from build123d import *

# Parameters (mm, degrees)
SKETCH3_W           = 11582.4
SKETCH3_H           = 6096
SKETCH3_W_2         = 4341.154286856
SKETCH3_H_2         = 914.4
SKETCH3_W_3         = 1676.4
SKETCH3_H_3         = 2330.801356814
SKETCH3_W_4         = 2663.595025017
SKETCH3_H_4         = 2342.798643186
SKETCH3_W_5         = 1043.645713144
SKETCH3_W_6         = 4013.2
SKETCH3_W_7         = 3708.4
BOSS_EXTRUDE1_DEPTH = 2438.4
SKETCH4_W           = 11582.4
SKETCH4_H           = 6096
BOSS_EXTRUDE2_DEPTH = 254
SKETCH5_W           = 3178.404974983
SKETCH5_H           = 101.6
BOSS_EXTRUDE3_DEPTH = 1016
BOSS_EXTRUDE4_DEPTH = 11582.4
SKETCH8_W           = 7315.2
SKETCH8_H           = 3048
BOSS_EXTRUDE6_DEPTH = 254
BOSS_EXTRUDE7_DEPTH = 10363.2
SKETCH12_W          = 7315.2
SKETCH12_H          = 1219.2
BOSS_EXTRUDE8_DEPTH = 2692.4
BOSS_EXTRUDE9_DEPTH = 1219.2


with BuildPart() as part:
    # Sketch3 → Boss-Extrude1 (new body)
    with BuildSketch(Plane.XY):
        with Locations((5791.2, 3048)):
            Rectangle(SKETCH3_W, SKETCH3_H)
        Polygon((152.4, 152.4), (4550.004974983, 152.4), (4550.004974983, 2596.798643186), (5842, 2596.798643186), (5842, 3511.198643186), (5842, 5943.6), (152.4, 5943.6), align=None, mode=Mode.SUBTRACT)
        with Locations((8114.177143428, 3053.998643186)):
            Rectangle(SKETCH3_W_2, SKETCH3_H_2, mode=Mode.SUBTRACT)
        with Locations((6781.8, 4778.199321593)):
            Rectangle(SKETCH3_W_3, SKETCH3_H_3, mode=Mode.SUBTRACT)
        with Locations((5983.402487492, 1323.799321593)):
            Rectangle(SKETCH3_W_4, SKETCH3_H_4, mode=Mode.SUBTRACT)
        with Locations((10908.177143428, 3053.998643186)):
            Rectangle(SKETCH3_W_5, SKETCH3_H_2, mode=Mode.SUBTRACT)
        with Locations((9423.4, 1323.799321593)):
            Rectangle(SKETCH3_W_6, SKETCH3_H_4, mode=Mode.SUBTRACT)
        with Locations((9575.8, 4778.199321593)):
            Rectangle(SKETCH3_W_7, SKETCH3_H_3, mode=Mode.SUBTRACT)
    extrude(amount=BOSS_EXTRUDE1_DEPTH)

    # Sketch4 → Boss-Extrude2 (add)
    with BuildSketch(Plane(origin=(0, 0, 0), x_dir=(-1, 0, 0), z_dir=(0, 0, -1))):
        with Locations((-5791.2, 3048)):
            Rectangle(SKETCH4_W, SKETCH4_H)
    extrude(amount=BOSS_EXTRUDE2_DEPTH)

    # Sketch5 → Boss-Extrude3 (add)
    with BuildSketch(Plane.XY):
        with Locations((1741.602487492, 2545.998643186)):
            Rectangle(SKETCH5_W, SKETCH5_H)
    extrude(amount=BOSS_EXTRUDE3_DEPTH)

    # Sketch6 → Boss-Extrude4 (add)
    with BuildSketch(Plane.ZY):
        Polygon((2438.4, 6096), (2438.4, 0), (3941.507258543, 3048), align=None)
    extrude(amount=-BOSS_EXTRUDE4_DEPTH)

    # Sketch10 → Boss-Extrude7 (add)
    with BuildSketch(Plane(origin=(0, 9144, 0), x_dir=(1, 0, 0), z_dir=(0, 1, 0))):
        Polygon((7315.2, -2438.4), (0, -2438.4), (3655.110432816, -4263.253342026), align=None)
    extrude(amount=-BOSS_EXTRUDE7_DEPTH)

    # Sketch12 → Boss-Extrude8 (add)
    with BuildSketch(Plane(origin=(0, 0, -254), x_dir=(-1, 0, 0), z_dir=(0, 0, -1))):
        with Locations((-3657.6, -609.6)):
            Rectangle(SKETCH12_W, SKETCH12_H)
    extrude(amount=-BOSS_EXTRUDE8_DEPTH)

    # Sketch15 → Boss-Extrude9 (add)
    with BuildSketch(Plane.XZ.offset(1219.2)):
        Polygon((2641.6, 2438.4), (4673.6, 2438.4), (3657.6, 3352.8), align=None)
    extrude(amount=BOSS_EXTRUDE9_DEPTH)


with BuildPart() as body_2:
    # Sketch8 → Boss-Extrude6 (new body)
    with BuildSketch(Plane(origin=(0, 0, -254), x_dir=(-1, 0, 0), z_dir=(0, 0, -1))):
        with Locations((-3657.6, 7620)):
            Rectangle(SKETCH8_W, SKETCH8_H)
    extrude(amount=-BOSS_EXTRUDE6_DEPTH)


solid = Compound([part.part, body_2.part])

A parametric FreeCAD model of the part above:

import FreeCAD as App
import Part
import Sketcher
Q = App.Units.Quantity


def add_polygon(sketch, points):
    """Adds a closed chain of lines whose ends are joined by coincident constraints."""
    first, n = sketch.GeometryCount, len(points)
    for a, b in zip(points, points[1:] + points[:1]):
        sketch.addGeometry(Part.LineSegment(App.Vector(*a, 0), App.Vector(*b, 0)), False)
    for i in range(n):
        sketch.addConstraint(Sketcher.Constraint("Coincident", first + i, 2, first + (i + 1) % n, 1))

doc = App.newDocument("Part")
body = doc.addObject("PartDesign::Body", "Body")

sketch1 = body.newObject("Sketcher::SketchObject", "Sketch")
sketch1.AttachmentSupport = (doc.getObject("XY_Plane"), [""])
sketch1.MapMode = "FlatFace"
add_polygon(sketch1, [(0, 6096), (0, 0), (11582, 0), (11582, 6096)])
add_polygon(sketch1, [(7315, 152), (4652, 152), (4652, 2495), (7315, 2495)])
add_polygon(sketch1, [(11430, 152), (7417, 152), (7417, 2495), (11430, 2495)])
add_polygon(sketch1, [(4550, 152), (152, 152), (152, 5944), (5842, 5944), (5842, 2597), (4550, 2597)])
add_polygon(sketch1, [(10285, 2597), (5944, 2597), (5944, 3511), (10285, 3511)])
add_polygon(sketch1, [(11430, 2597), (10386, 2597), (10386, 3511), (11430, 3511)])
add_polygon(sketch1, [(7620, 3613), (5944, 3613), (5944, 5944), (7620, 5944)])
add_polygon(sketch1, [(11430, 3613), (7722, 3613), (7722, 5944), (11430, 5944)])
sketch1.addConstraint(Sketcher.Constraint("Vertical", 0))
sketch1.addConstraint(Sketcher.Constraint("Horizontal", 1))
sketch1.addConstraint(Sketcher.Constraint("Vertical", 2))
sketch1.addConstraint(Sketcher.Constraint("Horizontal", 3))
sketch1.addConstraint(Sketcher.Constraint("Horizontal", 4))
sketch1.addConstraint(Sketcher.Constraint("Vertical", 5))
sketch1.addConstraint(Sketcher.Constraint("Horizontal", 6))
sketch1.addConstraint(Sketcher.Constraint("Vertical", 7))
sketch1.addConstraint(Sketcher.Constraint("Horizontal", 8))
sketch1.addConstraint(Sketcher.Constraint("Vertical", 9))
sketch1.addConstraint(Sketcher.Constraint("Horizontal", 10))
sketch1.addConstraint(Sketcher.Constraint("Vertical", 11))
sketch1.addConstraint(Sketcher.Constraint("Horizontal", 12))
sketch1.addConstraint(Sketcher.Constraint("Vertical", 13))
sketch1.addConstraint(Sketcher.Constraint("Horizontal", 14))
sketch1.addConstraint(Sketcher.Constraint("Vertical", 15))
sketch1.addConstraint(Sketcher.Constraint("Horizontal", 16))
sketch1.addConstraint(Sketcher.Constraint("Vertical", 17))
sketch1.addConstraint(Sketcher.Constraint("Horizontal", 18))
sketch1.addConstraint(Sketcher.Constraint("Vertical", 19))
sketch1.addConstraint(Sketcher.Constraint("Horizontal", 20))
sketch1.addConstraint(Sketcher.Constraint("Vertical", 21))
sketch1.addConstraint(Sketcher.Constraint("Horizontal", 22))
sketch1.addConstraint(Sketcher.Constraint("Vertical", 23))
sketch1.addConstraint(Sketcher.Constraint("Horizontal", 24))
sketch1.addConstraint(Sketcher.Constraint("Vertical", 25))
sketch1.addConstraint(Sketcher.Constraint("Horizontal", 26))
sketch1.addConstraint(Sketcher.Constraint("Vertical", 27))
sketch1.addConstraint(Sketcher.Constraint("Horizontal", 28))
sketch1.addConstraint(Sketcher.Constraint("Vertical", 29))
sketch1.addConstraint(Sketcher.Constraint("Horizontal", 30))
sketch1.addConstraint(Sketcher.Constraint("Vertical", 31))
sketch1.addConstraint(Sketcher.Constraint("Horizontal", 32))
sketch1.addConstraint(Sketcher.Constraint("Vertical", 33))
sketch1.addConstraint(Sketcher.Constraint("Coincident", 0, 2, -1, 1))
sketch1.addConstraint(Sketcher.Constraint("Horizontal", 7, 2, 8, 2))
sketch1.addConstraint(Sketcher.Constraint("Horizontal", 6, 2, 9, 2))
sketch1.addConstraint(Sketcher.Constraint("Horizontal", 11, 2, 12, 2))
sketch1.addConstraint(Sketcher.Constraint("Horizontal", 16, 2, 18, 2))
sketch1.addConstraint(Sketcher.Constraint("Horizontal", 21, 2, 22, 2))
sketch1.addConstraint(Sketcher.Constraint("Horizontal", 20, 2, 23, 2))
sketch1.addConstraint(Sketcher.Constraint("Horizontal", 14, 2, 27, 2))
sketch1.addConstraint(Sketcher.Constraint("Horizontal", 29, 2, 30, 2))
sketch1.addConstraint(Sketcher.Constraint("Horizontal", 28, 2, 31, 2))
sketch1.addConstraint(Sketcher.Constraint("Vertical", 11, 2, 24, 2))
sketch1.addConstraint(Sketcher.Constraint("Vertical", 19, 2, 26, 2))
sketch1.addConstraint(Sketcher.Constraint("Vertical", 25, 2, 32, 2))
sketch1.addConstraint(Sketcher.Constraint("DistanceX", 1, 1, 1, 2, Q("456 in")))
sketch1.addConstraint(Sketcher.Constraint("DistanceX", 8, 2, 8, 1, Q("158 in")))
sketch1.addConstraint(Sketcher.Constraint("DistanceX", 14, 1, 14, 2, Q("224 in")))
sketch1.addConstraint(Sketcher.Constraint("DistanceX", 26, 2, 26, 1, Q("66 in")))
sketch1.addConstraint(Sketcher.Constraint("DistanceX", 30, 2, 30, 1, Q("146 in")))
sketch1.addConstraint(Sketcher.Constraint("DistanceY", 0, 2, 0, 1, Q("240 in")))
sketch1.addConstraint(Sketcher.Constraint("DistanceY", 13, 1, 13, 2, Q("228 in")))
sketch1.addConstraint(Sketcher.Constraint("DistanceY", 19, 1, 19, 2, Q("36 in")))
sketch1.addConstraint(Sketcher.Constraint("DistanceY", -1, 1, 4, 2, Q("6 in")))
sketch1.addConstraint(Sketcher.Constraint("DistanceX", -1, 1, 6, 2, Q("288 in")))
sketch1.addConstraint(Sketcher.Constraint("DistanceX", -1, 1, 8, 2, Q("292 in")))
sketch1.addConstraint(Sketcher.Constraint("DistanceX", -1, 1, 12, 2, Q("6 in")))
sketch1.addConstraint(Sketcher.Constraint("DistanceX", -1, 1, 18, 2, Q("234 in")))
sketch1.addConstraint(Sketcher.Constraint("DistanceY", 5, 2, 15, 2, Q("4 in")))
sketch1.addConstraint(Sketcher.Constraint("DistanceX", 16, 2, 5, 2, Q("4 in")))
sketch1.addConstraint(Sketcher.Constraint("DistanceX", 21, 2, 22, 2, Q("4 in")))
sketch1.addConstraint(Sketcher.Constraint("DistanceY", 19, 2, 26, 2, Q("4 in")))
sketch1.addConstraint(Sketcher.Constraint("DistanceX", 4, 2, 4, 1, 2663.595025))
sketch1.addConstraint(Sketcher.Constraint("DistanceX", 18, 2, 18, 1, 4341.154287))
sketch1.addConstraint(Sketcher.Constraint("DistanceY", 5, 1, 5, 2, 2342.798643))
pad1 = body.newObject("PartDesign::Pad", "Pad")
pad1.Profile = sketch1
pad1.Length = Q("96 in")

sketch2 = body.newObject("Sketcher::SketchObject", "Sketch001")
sketch2.AttachmentSupport = (doc.getObject("XY_Plane"), [""])
sketch2.MapMode = "FlatFace"
add_polygon(sketch2, [(11582, 6096), (11582, 0), (0, 0), (0, 6096)])
sketch2.addConstraint(Sketcher.Constraint("Vertical", 0))
sketch2.addConstraint(Sketcher.Constraint("Horizontal", 1))
sketch2.addConstraint(Sketcher.Constraint("Vertical", 2))
sketch2.addConstraint(Sketcher.Constraint("Horizontal", 3))
sketch2.addConstraint(Sketcher.Constraint("Coincident", 1, 2, -1, 1))
sketch2.addConstraint(Sketcher.Constraint("DistanceX", 1, 2, 1, 1, Q("456 in")))
sketch2.addConstraint(Sketcher.Constraint("DistanceY", 0, 2, 0, 1, Q("240 in")))
pad2 = body.newObject("PartDesign::Pad", "Pad001")
pad2.Profile = sketch2
pad2.Length = Q("10 in")
pad2.Reversed = True

sketch3 = body.newObject("Sketcher::SketchObject", "Sketch002")
sketch3.AttachmentSupport = (doc.getObject("XY_Plane"), [""])
sketch3.MapMode = "FlatFace"
add_polygon(sketch3, [(152, 2597), (152, 2495), (3331, 2495), (3331, 2597)])
sketch3.addConstraint(Sketcher.Constraint("Vertical", 0))
sketch3.addConstraint(Sketcher.Constraint("Horizontal", 1))
sketch3.addConstraint(Sketcher.Constraint("Vertical", 2))
sketch3.addConstraint(Sketcher.Constraint("Horizontal", 3))
sketch3.addConstraint(Sketcher.Constraint("DistanceY", 0, 2, 0, 1, Q("4 in")))
sketch3.addConstraint(Sketcher.Constraint("DistanceX", -1, 1, 0, 2, Q("6 in")))
sketch3.addConstraint(Sketcher.Constraint("DistanceX", 1, 1, 1, 2, 3178.404975))
sketch3.addConstraint(Sketcher.Constraint("DistanceY", -1, 1, 0, 2, 2495.198643))
pad3 = body.newObject("PartDesign::Pad", "Pad002")
pad3.Profile = sketch3
pad3.Length = Q("40 in")

sketch4 = body.newObject("Sketcher::SketchObject", "Sketch003")
sketch4.AttachmentSupport = (doc.getObject("YZ_Plane"), [""])
sketch4.MapMode = "FlatFace"
add_polygon(sketch4, [(6096, 2438), (0, 2438), (3048, 3942)])
sketch4.addConstraint(Sketcher.Constraint("Horizontal", 0))
sketch4.addConstraint(Sketcher.Constraint("PointOnObject", 0, 2, -2))
sketch4.addConstraint(Sketcher.Constraint("Equal", 1, 2))
sketch4.addConstraint(Sketcher.Constraint("DistanceX", 0, 2, 0, 1, Q("240 in")))
sketch4.addConstraint(Sketcher.Constraint("DistanceY", -1, 1, 0, 2, Q("96 in")))
sketch4.addConstraint(Sketcher.Constraint("Angle", 1, Q("26.25 deg")))
pad4 = body.newObject("PartDesign::Pad", "Pad003")
pad4.Profile = sketch4
pad4.Length = Q("456 in")

sketch5 = body.newObject("Sketcher::SketchObject", "Sketch004")
sketch5.AttachmentSupport = (doc.getObject("XZ_Plane"), [""])
sketch5.MapMode = "FlatFace"
sketch5.AttachmentOffset = App.Placement(App.Vector(0, 0, -360 * 25.4), App.Rotation())
add_polygon(sketch5, [(7315, 2438), (0, 2438), (3655, 4263)])
sketch5.addConstraint(Sketcher.Constraint("Horizontal", 0))
sketch5.addConstraint(Sketcher.Constraint("PointOnObject", 0, 2, -2))
sketch5.addConstraint(Sketcher.Constraint("DistanceX", 0, 2, 0, 1, Q("288 in")))
sketch5.addConstraint(Sketcher.Constraint("DistanceY", -1, 1, 0, 2, Q("96 in")))
sketch5.addConstraint(Sketcher.Constraint("Angle", 2, Q("-26.5 deg")))
sketch5.addConstraint(Sketcher.Constraint("Distance", 2, 4089.785491))
pad5 = body.newObject("PartDesign::Pad", "Pad004")
pad5.Profile = sketch5
pad5.Length = Q("408 in")

sketch6 = body.newObject("Sketcher::SketchObject", "Sketch005")
sketch6.AttachmentSupport = (doc.getObject("XY_Plane"), [""])
sketch6.MapMode = "FlatFace"
sketch6.AttachmentOffset = App.Placement(App.Vector(0, 0, -10 * 25.4), App.Rotation())
add_polygon(sketch6, [(7315, 0), (7315, -1219), (0, -1219), (0, 0)])
sketch6.addConstraint(Sketcher.Constraint("Vertical", 0))
sketch6.addConstraint(Sketcher.Constraint("Horizontal", 1))
sketch6.addConstraint(Sketcher.Constraint("Vertical", 2))
sketch6.addConstraint(Sketcher.Constraint("Horizontal", 3))
sketch6.addConstraint(Sketcher.Constraint("Coincident", 2, 2, -1, 1))
sketch6.addConstraint(Sketcher.Constraint("DistanceX", 1, 2, 1, 1, Q("288 in")))
sketch6.addConstraint(Sketcher.Constraint("DistanceY", 0, 2, 0, 1, Q("48 in")))
pad6 = body.newObject("PartDesign::Pad", "Pad005")
pad6.Profile = sketch6
pad6.Length = Q("106 in")

sketch7 = body.newObject("Sketcher::SketchObject", "Sketch006")
sketch7.AttachmentSupport = (doc.getObject("XZ_Plane"), [""])
sketch7.MapMode = "FlatFace"
sketch7.AttachmentOffset = App.Placement(App.Vector(0, 0, 48 * 25.4), App.Rotation())
add_polygon(sketch7, [(2642, 2438), (4674, 2438), (3658, 3353)])
sketch7.addConstraint(Sketcher.Constraint("Horizontal", 0))
sketch7.addConstraint(Sketcher.Constraint("Equal", 1, 2))
sketch7.addConstraint(Sketcher.Constraint("DistanceX", 0, 1, 0, 2, Q("80 in")))
sketch7.addConstraint(Sketcher.Constraint("DistanceX", -1, 1, 0, 2, Q("184 in")))
sketch7.addConstraint(Sketcher.Constraint("DistanceY", -1, 1, 0, 2, Q("96 in")))
sketch7.addConstraint(Sketcher.Constraint("DistanceY", -1, 1, 1, 2, Q("132 in")))
pad7 = body.newObject("PartDesign::Pad", "Pad006")
pad7.Profile = sketch7
pad7.Length = Q("48 in")
body2 = doc.addObject("PartDesign::Body", "Body001")

sketch8 = body2.newObject("Sketcher::SketchObject", "Sketch007")
sketch8.AttachmentSupport = (doc.getObject("XY_Plane001"), [""])
sketch8.MapMode = "FlatFace"
sketch8.AttachmentOffset = App.Placement(App.Vector(0, 0, -10 * 25.4), App.Rotation())
add_polygon(sketch8, [(7315, 9144), (7315, 6096), (0, 6096), (0, 9144)])
sketch8.addConstraint(Sketcher.Constraint("Vertical", 0))
sketch8.addConstraint(Sketcher.Constraint("Horizontal", 1))
sketch8.addConstraint(Sketcher.Constraint("Vertical", 2))
sketch8.addConstraint(Sketcher.Constraint("Horizontal", 3))
sketch8.addConstraint(Sketcher.Constraint("PointOnObject", 1, 2, -2))
sketch8.addConstraint(Sketcher.Constraint("DistanceX", 1, 2, 1, 1, Q("288 in")))
sketch8.addConstraint(Sketcher.Constraint("DistanceY", 0, 2, 0, 1, Q("120 in")))
sketch8.addConstraint(Sketcher.Constraint("DistanceY", -1, 1, 0, 2, Q("240 in")))
pad8 = body2.newObject("PartDesign::Pad", "Pad007")
pad8.Profile = sketch8
pad8.Length = Q("10 in")

doc.recompute()
